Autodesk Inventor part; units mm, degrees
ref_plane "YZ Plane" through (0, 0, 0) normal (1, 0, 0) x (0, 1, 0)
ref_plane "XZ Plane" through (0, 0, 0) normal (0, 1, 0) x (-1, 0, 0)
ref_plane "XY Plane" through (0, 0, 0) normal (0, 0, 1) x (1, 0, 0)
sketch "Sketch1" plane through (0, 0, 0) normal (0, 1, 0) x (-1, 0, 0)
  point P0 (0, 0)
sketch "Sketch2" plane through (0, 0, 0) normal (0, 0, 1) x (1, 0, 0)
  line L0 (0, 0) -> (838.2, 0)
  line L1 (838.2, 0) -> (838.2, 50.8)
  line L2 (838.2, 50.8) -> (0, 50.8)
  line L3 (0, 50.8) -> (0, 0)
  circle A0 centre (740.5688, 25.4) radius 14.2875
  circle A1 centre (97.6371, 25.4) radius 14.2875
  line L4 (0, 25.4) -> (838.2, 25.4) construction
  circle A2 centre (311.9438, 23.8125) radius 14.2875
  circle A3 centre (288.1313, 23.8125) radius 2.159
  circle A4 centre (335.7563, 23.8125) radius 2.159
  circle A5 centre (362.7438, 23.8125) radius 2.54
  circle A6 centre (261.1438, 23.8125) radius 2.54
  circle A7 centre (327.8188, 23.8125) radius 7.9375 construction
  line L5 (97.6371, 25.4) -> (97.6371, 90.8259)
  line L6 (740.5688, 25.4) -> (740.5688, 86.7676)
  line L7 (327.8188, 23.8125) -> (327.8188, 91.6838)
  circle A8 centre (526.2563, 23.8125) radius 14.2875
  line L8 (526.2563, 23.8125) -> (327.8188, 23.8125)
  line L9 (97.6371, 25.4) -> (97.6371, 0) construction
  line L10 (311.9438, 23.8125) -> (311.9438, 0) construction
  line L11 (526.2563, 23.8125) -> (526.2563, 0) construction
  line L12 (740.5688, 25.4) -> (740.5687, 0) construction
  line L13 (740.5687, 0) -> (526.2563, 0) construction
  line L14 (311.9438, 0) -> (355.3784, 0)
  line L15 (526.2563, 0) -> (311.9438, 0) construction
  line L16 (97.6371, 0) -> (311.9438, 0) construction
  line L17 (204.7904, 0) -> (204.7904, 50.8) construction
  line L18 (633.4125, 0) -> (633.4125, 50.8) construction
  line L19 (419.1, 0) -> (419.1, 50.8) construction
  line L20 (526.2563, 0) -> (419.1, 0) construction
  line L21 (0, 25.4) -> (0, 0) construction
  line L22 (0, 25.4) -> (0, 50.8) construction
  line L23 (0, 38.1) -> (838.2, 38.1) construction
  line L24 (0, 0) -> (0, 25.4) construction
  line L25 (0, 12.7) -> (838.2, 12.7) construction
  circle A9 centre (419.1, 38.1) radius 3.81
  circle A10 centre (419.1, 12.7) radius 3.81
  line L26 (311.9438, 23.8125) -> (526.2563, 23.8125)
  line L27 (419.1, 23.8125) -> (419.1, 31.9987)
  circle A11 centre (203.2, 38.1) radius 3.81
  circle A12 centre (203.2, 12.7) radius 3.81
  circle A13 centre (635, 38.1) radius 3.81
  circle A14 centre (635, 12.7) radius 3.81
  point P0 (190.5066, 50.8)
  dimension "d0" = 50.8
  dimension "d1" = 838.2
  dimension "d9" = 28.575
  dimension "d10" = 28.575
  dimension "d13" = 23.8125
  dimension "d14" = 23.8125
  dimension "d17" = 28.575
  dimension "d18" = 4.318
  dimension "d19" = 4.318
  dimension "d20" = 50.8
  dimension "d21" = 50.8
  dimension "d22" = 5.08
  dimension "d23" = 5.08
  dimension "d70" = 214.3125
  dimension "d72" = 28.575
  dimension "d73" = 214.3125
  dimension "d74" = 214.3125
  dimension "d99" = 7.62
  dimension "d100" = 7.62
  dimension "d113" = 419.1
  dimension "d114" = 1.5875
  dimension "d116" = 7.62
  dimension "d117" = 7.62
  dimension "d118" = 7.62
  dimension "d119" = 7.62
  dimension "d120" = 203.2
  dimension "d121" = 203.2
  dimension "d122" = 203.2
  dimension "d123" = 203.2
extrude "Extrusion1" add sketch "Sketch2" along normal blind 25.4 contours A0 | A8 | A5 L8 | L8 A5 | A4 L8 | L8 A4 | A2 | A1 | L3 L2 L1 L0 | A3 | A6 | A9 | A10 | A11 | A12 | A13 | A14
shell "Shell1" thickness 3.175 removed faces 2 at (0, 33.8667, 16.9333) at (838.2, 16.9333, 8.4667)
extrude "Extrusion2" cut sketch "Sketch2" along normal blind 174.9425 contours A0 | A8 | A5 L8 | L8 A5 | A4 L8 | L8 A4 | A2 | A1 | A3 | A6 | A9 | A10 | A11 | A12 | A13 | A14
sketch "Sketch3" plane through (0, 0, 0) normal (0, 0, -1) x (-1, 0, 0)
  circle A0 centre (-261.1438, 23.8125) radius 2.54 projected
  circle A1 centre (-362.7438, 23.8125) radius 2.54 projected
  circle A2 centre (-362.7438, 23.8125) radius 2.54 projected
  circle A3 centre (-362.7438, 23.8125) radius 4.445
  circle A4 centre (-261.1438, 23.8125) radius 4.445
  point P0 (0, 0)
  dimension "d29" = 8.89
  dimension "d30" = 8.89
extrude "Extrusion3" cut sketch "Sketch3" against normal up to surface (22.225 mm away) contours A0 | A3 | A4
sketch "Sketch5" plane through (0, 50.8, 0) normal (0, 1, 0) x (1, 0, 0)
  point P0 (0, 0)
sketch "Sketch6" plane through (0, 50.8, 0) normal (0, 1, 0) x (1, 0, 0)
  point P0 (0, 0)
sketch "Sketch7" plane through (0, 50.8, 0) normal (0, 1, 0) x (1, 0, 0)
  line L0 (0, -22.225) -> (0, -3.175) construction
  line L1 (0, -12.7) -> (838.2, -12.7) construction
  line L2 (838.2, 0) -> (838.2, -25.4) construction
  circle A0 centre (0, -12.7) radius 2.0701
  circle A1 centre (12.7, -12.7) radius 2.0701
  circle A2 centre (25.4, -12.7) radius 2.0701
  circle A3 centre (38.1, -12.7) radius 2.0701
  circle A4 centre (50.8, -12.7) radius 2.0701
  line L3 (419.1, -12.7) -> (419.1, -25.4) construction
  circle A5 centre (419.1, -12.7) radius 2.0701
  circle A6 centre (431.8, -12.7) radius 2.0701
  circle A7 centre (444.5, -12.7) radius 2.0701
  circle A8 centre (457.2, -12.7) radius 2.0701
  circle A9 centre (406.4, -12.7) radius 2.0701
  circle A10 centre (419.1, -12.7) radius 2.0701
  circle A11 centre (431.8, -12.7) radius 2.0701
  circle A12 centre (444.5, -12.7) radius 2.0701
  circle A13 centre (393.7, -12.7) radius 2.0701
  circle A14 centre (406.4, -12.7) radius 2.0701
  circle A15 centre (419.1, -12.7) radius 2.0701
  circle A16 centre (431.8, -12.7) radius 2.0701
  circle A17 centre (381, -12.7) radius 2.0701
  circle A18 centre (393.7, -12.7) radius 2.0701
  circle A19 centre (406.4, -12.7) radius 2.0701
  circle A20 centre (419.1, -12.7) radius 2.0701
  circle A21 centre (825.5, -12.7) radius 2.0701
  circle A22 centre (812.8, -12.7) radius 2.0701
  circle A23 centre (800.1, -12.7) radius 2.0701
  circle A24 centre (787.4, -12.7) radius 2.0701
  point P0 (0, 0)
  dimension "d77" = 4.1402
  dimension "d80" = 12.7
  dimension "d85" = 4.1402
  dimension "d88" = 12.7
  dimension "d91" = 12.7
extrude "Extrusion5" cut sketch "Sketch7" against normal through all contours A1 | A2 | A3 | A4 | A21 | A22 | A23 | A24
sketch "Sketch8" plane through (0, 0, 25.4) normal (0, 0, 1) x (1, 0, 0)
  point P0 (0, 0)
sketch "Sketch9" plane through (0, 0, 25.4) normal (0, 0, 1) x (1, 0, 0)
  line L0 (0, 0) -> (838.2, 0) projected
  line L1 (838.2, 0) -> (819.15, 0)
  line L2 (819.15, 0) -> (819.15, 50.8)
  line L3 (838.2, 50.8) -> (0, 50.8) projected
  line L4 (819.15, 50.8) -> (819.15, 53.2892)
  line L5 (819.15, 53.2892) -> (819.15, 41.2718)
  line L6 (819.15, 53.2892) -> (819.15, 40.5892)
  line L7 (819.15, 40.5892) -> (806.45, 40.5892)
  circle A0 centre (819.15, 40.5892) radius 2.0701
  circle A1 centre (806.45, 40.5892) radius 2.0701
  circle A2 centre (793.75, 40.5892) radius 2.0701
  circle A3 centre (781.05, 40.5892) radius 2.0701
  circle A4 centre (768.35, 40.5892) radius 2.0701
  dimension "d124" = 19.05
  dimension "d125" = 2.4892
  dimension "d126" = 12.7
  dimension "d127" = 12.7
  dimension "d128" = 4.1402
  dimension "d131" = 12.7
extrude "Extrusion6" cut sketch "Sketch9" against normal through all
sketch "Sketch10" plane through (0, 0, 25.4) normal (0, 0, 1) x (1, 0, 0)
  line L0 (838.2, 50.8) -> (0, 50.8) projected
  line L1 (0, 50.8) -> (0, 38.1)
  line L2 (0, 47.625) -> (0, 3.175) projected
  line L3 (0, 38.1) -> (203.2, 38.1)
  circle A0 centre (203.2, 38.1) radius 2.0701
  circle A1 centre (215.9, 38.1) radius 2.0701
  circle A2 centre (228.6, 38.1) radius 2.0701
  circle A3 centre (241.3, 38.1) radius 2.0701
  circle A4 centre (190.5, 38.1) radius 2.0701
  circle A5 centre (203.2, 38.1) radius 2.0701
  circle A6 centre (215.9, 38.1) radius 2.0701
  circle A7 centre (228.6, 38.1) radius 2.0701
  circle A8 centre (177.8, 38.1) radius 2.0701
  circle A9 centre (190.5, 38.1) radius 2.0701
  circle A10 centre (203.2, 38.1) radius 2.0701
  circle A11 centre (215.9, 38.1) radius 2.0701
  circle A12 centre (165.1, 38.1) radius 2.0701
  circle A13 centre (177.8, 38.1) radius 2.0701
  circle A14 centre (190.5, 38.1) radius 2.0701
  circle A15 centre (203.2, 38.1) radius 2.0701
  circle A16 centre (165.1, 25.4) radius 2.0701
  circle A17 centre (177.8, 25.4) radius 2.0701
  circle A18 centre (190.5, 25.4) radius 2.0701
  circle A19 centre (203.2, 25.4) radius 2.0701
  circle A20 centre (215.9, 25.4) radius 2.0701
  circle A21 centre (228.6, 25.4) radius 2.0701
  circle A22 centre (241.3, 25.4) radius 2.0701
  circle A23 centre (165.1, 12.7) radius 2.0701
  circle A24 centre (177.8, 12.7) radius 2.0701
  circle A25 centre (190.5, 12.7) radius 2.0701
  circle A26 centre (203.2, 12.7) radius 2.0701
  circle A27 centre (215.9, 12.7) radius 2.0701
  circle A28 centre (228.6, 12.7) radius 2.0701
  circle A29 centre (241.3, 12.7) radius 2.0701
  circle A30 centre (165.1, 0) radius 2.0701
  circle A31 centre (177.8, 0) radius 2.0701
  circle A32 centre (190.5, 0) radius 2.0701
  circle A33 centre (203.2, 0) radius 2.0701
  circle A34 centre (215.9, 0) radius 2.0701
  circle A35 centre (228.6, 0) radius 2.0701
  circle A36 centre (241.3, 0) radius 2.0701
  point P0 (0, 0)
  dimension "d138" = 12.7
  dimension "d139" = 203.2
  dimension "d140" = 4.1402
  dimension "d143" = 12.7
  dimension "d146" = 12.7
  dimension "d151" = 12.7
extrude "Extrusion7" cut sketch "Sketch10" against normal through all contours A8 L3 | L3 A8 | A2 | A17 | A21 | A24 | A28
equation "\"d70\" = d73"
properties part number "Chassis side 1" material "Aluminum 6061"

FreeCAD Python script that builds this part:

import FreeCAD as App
import Part
import Sketcher
Q = App.Units.Quantity


def faces_at(feature, points):
    """Names of the faces that lie closest to the given points."""
    faces = feature.Shape.Faces
    near = lambda p: min(range(len(faces)), key=lambda i: faces[i].distToShape(Part.Vertex(*p))[0])
    return sorted({f"Face{near(p) + 1}" for p in points})

doc = App.newDocument("Part")
body = doc.addObject("PartDesign::Body", "Body")

# Sketch on XY plane
sketch1 = body.newObject("Sketcher::SketchObject", "Sketch")
sketch1.AttachmentSupport = (doc.getObject("XY_Plane"), [""])
sketch1.MapMode = "FlatFace"
sketch1.addGeometry(Part.LineSegment(App.Vector(0, 51, 0), App.Vector(0, 0, 0)), False)
sketch1.addGeometry(Part.LineSegment(App.Vector(0, 0, 0), App.Vector(838, 0, 0)), False)
sketch1.addGeometry(Part.LineSegment(App.Vector(838, 0, 0), App.Vector(838, 51, 0)), False)
sketch1.addGeometry(Part.LineSegment(App.Vector(838, 51, 0), App.Vector(741, 51, 0)), False)
sketch1.addGeometry(Part.LineSegment(App.Vector(741, 51, 0), App.Vector(328, 51, 0)), False)
sketch1.addGeometry(Part.LineSegment(App.Vector(328, 51, 0), App.Vector(98, 51, 0)), False)
sketch1.addGeometry(Part.LineSegment(App.Vector(98, 51, 0), App.Vector(0, 51, 0)), False)
sketch1.addConstraint(Sketcher.Constraint("Coincident", 0, 2, 1, 1))
sketch1.addConstraint(Sketcher.Constraint("Coincident", 1, 2, 2, 1))
sketch1.addConstraint(Sketcher.Constraint("Coincident", 2, 2, 3, 1))
sketch1.addConstraint(Sketcher.Constraint("Coincident", 3, 2, 4, 1))
sketch1.addConstraint(Sketcher.Constraint("Coincident", 4, 2, 5, 1))
sketch1.addConstraint(Sketcher.Constraint("Coincident", 5, 2, 6, 1))
sketch1.addConstraint(Sketcher.Constraint("Coincident", 6, 2, 0, 1))
sketch1.addConstraint(Sketcher.Constraint("Vertical", 0))
sketch1.addConstraint(Sketcher.Constraint("Horizontal", 1))
sketch1.addConstraint(Sketcher.Constraint("Vertical", 2))
sketch1.addConstraint(Sketcher.Constraint("Horizontal", 3))
sketch1.addConstraint(Sketcher.Constraint("Horizontal", 4))
sketch1.addConstraint(Sketcher.Constraint("Horizontal", 5))
sketch1.addConstraint(Sketcher.Constraint("Horizontal", 6))
sketch1.addConstraint(Sketcher.Constraint("Coincident", 0, 2, -1, 1))
sketch1.addConstraint(Sketcher.Constraint("DistanceX", 1, 1, 1, 2, Q("33 in")))
sketch1.addConstraint(Sketcher.Constraint("DistanceY", 0, 2, 0, 1, Q("2 in")))
sketch1.addConstraint(Sketcher.Constraint("DistanceX", 4, 2, 4, 1, Q("16.25 in")))
sketch1.addConstraint(Sketcher.Constraint("DistanceX", 3, 2, 3, 1, Q("3.843748 in")))
sketch1.addConstraint(Sketcher.Constraint("DistanceX", 5, 2, 5, 1, Q("230.1817 mm")))
pad1 = body.newObject("PartDesign::Pad", "Pad")
pad1.Profile = sketch1
pad1.Length = Q("1 in")
doc.recompute()

thickness = body.newObject("PartDesign::Thickness", "Thickness")
thickness.Base = (pad1, faces_at(pad1, [(0, 33.867, 16.933), (838.2, 16.933, 8.467)]))
thickness.Value = Q("0.125 in")
thickness.Reversed = True
thickness.Join = "Intersection"

# Sketch on XY plane
sketch2 = body.newObject("Sketcher::SketchObject", "Sketch001")
sketch2.AttachmentSupport = (doc.getObject("XY_Plane"), [""])
sketch2.MapMode = "FlatFace"
sketch2.addGeometry(Part.Circle(App.Vector(740.6, 25.4, 0), App.Vector(0, 0, 1), 14.3), False)
sketch2.addGeometry(Part.Circle(App.Vector(526.3, 23.8, 0), App.Vector(0, 0, 1), 14.3), False)
sketch2.addGeometry(Part.Circle(App.Vector(362.7, 23.8, 0), App.Vector(0, 0, 1), 2.5), False)
sketch2.addGeometry(Part.Circle(App.Vector(335.8, 23.8, 0), App.Vector(0, 0, 1), 2.2), False)
sketch2.addGeometry(Part.Circle(App.Vector(311.9, 23.8, 0), App.Vector(0, 0, 1), 14.3), False)
sketch2.addGeometry(Part.Circle(App.Vector(97.6, 25.4, 0), App.Vector(0, 0, 1), 14.3), False)
sketch2.addGeometry(Part.Circle(App.Vector(288.1, 23.8, 0), App.Vector(0, 0, 1), 2.2), False)
sketch2.addGeometry(Part.Circle(App.Vector(261.1, 23.8, 0), App.Vector(0, 0, 1), 2.5), False)
sketch2.addGeometry(Part.Circle(App.Vector(419.1, 38.1, 0), App.Vector(0, 0, 1), 3.8), False)
sketch2.addGeometry(Part.Circle(App.Vector(419.1, 12.7, 0), App.Vector(0, 0, 1), 3.8), False)
sketch2.addGeometry(Part.Circle(App.Vector(203.2, 38.1, 0), App.Vector(0, 0, 1), 3.8), False)
sketch2.addGeometry(Part.Circle(App.Vector(203.2, 12.7, 0), App.Vector(0, 0, 1), 3.8), False)
sketch2.addGeometry(Part.Circle(App.Vector(635, 38.1, 0), App.Vector(0, 0, 1), 3.8), False)
sketch2.addGeometry(Part.Circle(App.Vector(635, 12.7, 0), App.Vector(0, 0, 1), 3.8), False)
sketch2.addConstraint(Sketcher.Constraint("Equal", 0, 1))
sketch2.addConstraint(Sketcher.Constraint("Equal", 1, 4))
sketch2.addConstraint(Sketcher.Constraint("Equal", 4, 5))
sketch2.addConstraint(Sketcher.Constraint("Equal", 3, 6))
sketch2.addConstraint(Sketcher.Constraint("Equal", 2, 7))
sketch2.addConstraint(Sketcher.Constraint("Equal", 8, 9))
sketch2.addConstraint(Sketcher.Constraint("Equal", 9, 10))
sketch2.addConstraint(Sketcher.Constraint("Equal", 10, 11))
sketch2.addConstraint(Sketcher.Constraint("Equal", 11, 12))
sketch2.addConstraint(Sketcher.Constraint("Equal", 12, 13))
sketch2.addConstraint(Sketcher.Constraint("Horizontal", 1, 3, 2, 3))
sketch2.addConstraint(Sketcher.Constraint("Horizontal", 2, 3, 3, 3))
sketch2.addConstraint(Sketcher.Constraint("Horizontal", 3, 3, 4, 3))
sketch2.addConstraint(Sketcher.Constraint("Horizontal", 0, 3, 5, 3))
sketch2.addConstraint(Sketcher.Constraint("Horizontal", 4, 3, 6, 3))
sketch2.addConstraint(Sketcher.Constraint("Horizontal", 6, 3, 7, 3))
sketch2.addConstraint(Sketcher.Constraint("Horizontal", 8, 3, 10, 3))
sketch2.addConstraint(Sketcher.Constraint("Horizontal", 9, 3, 11, 3))
sketch2.addConstraint(Sketcher.Constraint("Horizontal", 10, 3, 12, 3))
sketch2.addConstraint(Sketcher.Constraint("Horizontal", 11, 3, 13, 3))
sketch2.addConstraint(Sketcher.Constraint("Vertical", 8, 3, 9, 3))
sketch2.addConstraint(Sketcher.Constraint("Vertical", 10, 3, 11, 3))
sketch2.addConstraint(Sketcher.Constraint("Vertical", 12, 3, 13, 3))
sketch2.addConstraint(Sketcher.Constraint("Diameter", 2, Q("0.2 in")))
sketch2.addConstraint(Sketcher.Constraint("Diameter", 8, Q("0.3 in")))
sketch2.addConstraint(Sketcher.Constraint("Diameter", 3, Q("0.17 in")))
sketch2.addConstraint(Sketcher.Constraint("Diameter", 0, Q("1.125 in")))
sketch2.addConstraint(Sketcher.Constraint("DistanceX", -1, 1, 10, 3, Q("8 in")))
sketch2.addConstraint(Sketcher.Constraint("DistanceX", 4, 3, 2, 3, Q("2 in")))
sketch2.addConstraint(Sketcher.Constraint("DistanceX", 7, 3, 4, 3, Q("2 in")))
sketch2.addConstraint(Sketcher.Constraint("DistanceX", -1, 1, 8, 3, Q("16.5 in")))
sketch2.addConstraint(Sketcher.Constraint("DistanceY", -1, 1, 0, 3, Q("1 in")))
sketch2.addConstraint(Sketcher.Constraint("DistanceY", -1, 1, 1, 3, Q("0.9375 in")))
sketch2.addConstraint(Sketcher.Constraint("DistanceX", -1, 1, 12, 3, Q("25 in")))
sketch2.addConstraint(Sketcher.Constraint("DistanceX", 1, 3, 0, 3, Q("8.4375 in")))
sketch2.addConstraint(Sketcher.Constraint("DistanceX", 4, 3, 3, 3, Q("0.9375 in")))
sketch2.addConstraint(Sketcher.Constraint("DistanceX", 4, 3, 1, 3, Q("8.4375 in")))
sketch2.addConstraint(Sketcher.Constraint("DistanceX", 6, 3, 4, 3, Q("0.9375 in")))
sketch2.addConstraint(Sketcher.Constraint("DistanceY", 9, 3, 8, 3, Q("1 in")))
sketch2.addConstraint(Sketcher.Constraint("DistanceY", -1, 1, 8, 3, Q("1.5 in")))
sketch2.addConstraint(Sketcher.Constraint("DistanceX", -1, 1, 0, 3, Q("29.156252 in")))
sketch2.addConstraint(Sketcher.Constraint("DistanceX", -1, 1, 5, 3, Q("97.637 mm")))
pocket1 = body.newObject("PartDesign::Pocket", "Pocket")
pocket1.Profile = sketch2
pocket1.Length = Q("6.8875 in")
pocket1.Reversed = True

# Sketch on XY plane
sketch3 = body.newObject("Sketcher::SketchObject", "Sketch002")
sketch3.AttachmentSupport = (doc.getObject("XY_Plane"), [""])
sketch3.MapMode = "FlatFace"
sketch3.addGeometry(Part.Circle(App.Vector(261.1, 23.8, 0), App.Vector(0, 0, 1), 4.4), False)
sketch3.addGeometry(Part.Circle(App.Vector(362.7, 23.8, 0), App.Vector(0, 0, 1), 4.4), False)
sketch3.addGeometry(Part.Circle(App.Vector(362.7, 23.8, 0), App.Vector(0, 0, 1), 2.5), False)
sketch3.addConstraint(Sketcher.Constraint("Coincident", 2, 3, 1, 3))
sketch3.addConstraint(Sketcher.Constraint("Equal", 0, 1))
sketch3.addConstraint(Sketcher.Constraint("Horizontal", 0, 3, 1, 3))
sketch3.addConstraint(Sketcher.Constraint("Diameter", 0, Q("0.35 in")))
sketch3.addConstraint(Sketcher.Constraint("Diameter", 2, Q("0.2 in")))
sketch3.addConstraint(Sketcher.Constraint("DistanceX", 0, 3, 1, 3, Q("4 in")))
sketch3.addConstraint(Sketcher.Constraint("DistanceX", -1, 1, 0, 3, Q("10.281252 in")))
sketch3.addConstraint(Sketcher.Constraint("DistanceY", -1, 1, 0, 3, Q("0.9375 in")))
pocket2 = body.newObject("PartDesign::Pocket", "Pocket001")
pocket2.Profile = sketch3
pocket2.Length = Q("0.875 in")
pocket2.Reversed = True

# Sketch on XZ plane
sketch4 = body.newObject("Sketcher::SketchObject", "Sketch003")
sketch4.AttachmentSupport = (doc.getObject("XZ_Plane"), [""])
sketch4.MapMode = "FlatFace"
sketch4.AttachmentOffset = App.Placement(App.Vector(0, 0, -2 * 25.4), App.Rotation())
sketch4.addGeometry(Part.Circle(App.Vector(12.7, 12.7, 0), App.Vector(0, 0, 1), 2.1), False)
sketch4.addGeometry(Part.Circle(App.Vector(25.4, 12.7, 0), App.Vector(0, 0, 1), 2.1), False)
sketch4.addGeometry(Part.Circle(App.Vector(38.1, 12.7, 0), App.Vector(0, 0, 1), 2.1), False)
sketch4.addGeometry(Part.Circle(App.Vector(50.8, 12.7, 0), App.Vector(0, 0, 1), 2.1), False)
sketch4.addGeometry(Part.Circle(App.Vector(825.5, 12.7, 0), App.Vector(0, 0, 1), 2.1), False)
sketch4.addGeometry(Part.Circle(App.Vector(812.8, 12.7, 0), App.Vector(0, 0, 1), 2.1), False)
sketch4.addGeometry(Part.Circle(App.Vector(800.1, 12.7, 0), App.Vector(0, 0, 1), 2.1), False)
sketch4.addGeometry(Part.Circle(App.Vector(787.4, 12.7, 0), App.Vector(0, 0, 1), 2.1), False)
sketch4.addConstraint(Sketcher.Constraint("Equal", 0, 1))
sketch4.addConstraint(Sketcher.Constraint("Equal", 1, 2))
sketch4.addConstraint(Sketcher.Constraint("Equal", 2, 3))
sketch4.addConstraint(Sketcher.Constraint("Equal", 3, 4))
sketch4.addConstraint(Sketcher.Constraint("Equal", 4, 5))
sketch4.addConstraint(Sketcher.Constraint("Equal", 5, 6))
sketch4.addConstraint(Sketcher.Constraint("Equal", 6, 7))
sketch4.addConstraint(Sketcher.Constraint("Horizontal", 0, 3, 1, 3))
sketch4.addConstraint(Sketcher.Constraint("Horizontal", 1, 3, 2, 3))
sketch4.addConstraint(Sketcher.Constraint("Horizontal", 2, 3, 3, 3))
sketch4.addConstraint(Sketcher.Constraint("Horizontal", 3, 3, 4, 3))
sketch4.addConstraint(Sketcher.Constraint("Horizontal", 4, 3, 5, 3))
sketch4.addConstraint(Sketcher.Constraint("Horizontal", 5, 3, 6, 3))
sketch4.addConstraint(Sketcher.Constraint("Horizontal", 6, 3, 7, 3))
sketch4.addConstraint(Sketcher.Constraint("Diameter", 0, Q("0.163 in")))
sketch4.addConstraint(Sketcher.Constraint("DistanceX", -1, 1, 1, 3, Q("1 in")))
sketch4.addConstraint(Sketcher.Constraint("DistanceX", 0, 3, 2, 3, Q("1 in")))
sketch4.addConstraint(Sketcher.Constraint("DistanceX", 1, 3, 3, 3, Q("1 in")))
sketch4.addConstraint(Sketcher.Constraint("DistanceX", 6, 3, 4, 3, Q("1 in")))
sketch4.addConstraint(Sketcher.Constraint("DistanceX", 7, 3, 5, 3, Q("1 in")))
sketch4.addConstraint(Sketcher.Constraint("DistanceX", -1, 1, 0, 3, Q("0.5 in")))
sketch4.addConstraint(Sketcher.Constraint("DistanceY", -1, 1, 0, 3, Q("0.5 in")))
sketch4.addConstraint(Sketcher.Constraint("DistanceX", 5, 3, 4, 3, Q("0.5 in")))
sketch4.addConstraint(Sketcher.Constraint("DistanceX", -1, 1, 5, 3, Q("32 in")))
pocket3 = body.newObject("PartDesign::Pocket", "Pocket002")
pocket3.Profile = sketch4
pocket3.Type = "ThroughAll"
pocket3.Reversed = True

# Sketch on XY plane
sketch5 = body.newObject("Sketcher::SketchObject", "Sketch004")
sketch5.AttachmentSupport = (doc.getObject("XY_Plane"), [""])
sketch5.MapMode = "FlatFace"
sketch5.AttachmentOffset = App.Placement(App.Vector(0, 0, 1 * 25.4), App.Rotation())
sketch5.addGeometry(Part.Circle(App.Vector(819.1, 40.6, 0), App.Vector(0, 0, 1), 2.1), False)
sketch5.addGeometry(Part.Circle(App.Vector(806.5, 40.6, 0), App.Vector(0, 0, 1), 2.1), False)
sketch5.addGeometry(Part.Circle(App.Vector(793.8, 40.6, 0), App.Vector(0, 0, 1), 2.1), False)
sketch5.addGeometry(Part.Circle(App.Vector(781, 40.6, 0), App.Vector(0, 0, 1), 2.1), False)
sketch5.addGeometry(Part.Circle(App.Vector(768.4, 40.6, 0), App.Vector(0, 0, 1), 2.1), False)
sketch5.addConstraint(Sketcher.Constraint("Equal", 0, 1))
sketch5.addConstraint(Sketcher.Constraint("Equal", 1, 2))
sketch5.addConstraint(Sketcher.Constraint("Equal", 2, 3))
sketch5.addConstraint(Sketcher.Constraint("Equal", 3, 4))
sketch5.addConstraint(Sketcher.Constraint("Horizontal", 0, 3, 1, 3))
sketch5.addConstraint(Sketcher.Constraint("Horizontal", 1, 3, 2, 3))
sketch5.addConstraint(Sketcher.Constraint("Horizontal", 2, 3, 3, 3))
sketch5.addConstraint(Sketcher.Constraint("Horizontal", 3, 3, 4, 3))
sketch5.addConstraint(Sketcher.Constraint("Diameter", 0, Q("0.163 in")))
sketch5.addConstraint(Sketcher.Constraint("DistanceX", 2, 3, 0, 3, Q("1 in")))
sketch5.addConstraint(Sketcher.Constraint("DistanceX", 3, 3, 1, 3, Q("1 in")))
sketch5.addConstraint(Sketcher.Constraint("DistanceX", 4, 3, 2, 3, Q("1 in")))
sketch5.addConstraint(Sketcher.Constraint("DistanceX", 1, 3, 0, 3, Q("0.5 in")))
sketch5.addConstraint(Sketcher.Constraint("DistanceX", -1, 1, 0, 3, Q("32.25 in")))
sketch5.addConstraint(Sketcher.Constraint("DistanceY", -1, 1, 0, 3, Q("1.598 in")))
pocket4 = body.newObject("PartDesign::Pocket", "Pocket003")
pocket4.Profile = sketch5
pocket4.Type = "ThroughAll"

# Sketch on XY plane
sketch6 = body.newObject("Sketcher::SketchObject", "Sketch005")
sketch6.AttachmentSupport = (doc.getObject("XY_Plane"), [""])
sketch6.MapMode = "FlatFace"
sketch6.AttachmentOffset = App.Placement(App.Vector(0, 0, 1 * 25.4), App.Rotation())
sketch6.addGeometry(Part.Circle(App.Vector(177.8, 38.1, 0), App.Vector(0, 0, 1), 2.1), False)
sketch6.addGeometry(Part.Circle(App.Vector(228.6, 38.1, 0), App.Vector(0, 0, 1), 2.1), False)
sketch6.addGeometry(Part.Circle(App.Vector(177.8, 25.4, 0), App.Vector(0, 0, 1), 2.1), False)
sketch6.addGeometry(Part.Circle(App.Vector(228.6, 25.4, 0), App.Vector(0, 0, 1), 2.1), False)
sketch6.addGeometry(Part.Circle(App.Vector(177.8, 12.7, 0), App.Vector(0, 0, 1), 2.1), False)
sketch6.addGeometry(Part.Circle(App.Vector(228.6, 12.7, 0), App.Vector(0, 0, 1), 2.1), False)
sketch6.addConstraint(Sketcher.Constraint("Equal", 0, 1))
sketch6.addConstraint(Sketcher.Constraint("Equal", 1, 2))
sketch6.addConstraint(Sketcher.Constraint("Equal", 2, 3))
sketch6.addConstraint(Sketcher.Constraint("Equal", 3, 4))
sketch6.addConstraint(Sketcher.Constraint("Equal", 4, 5))
sketch6.addConstraint(Sketcher.Constraint("Horizontal", 0, 3, 1, 3))
sketch6.addConstraint(Sketcher.Constraint("Horizontal", 2, 3, 3, 3))
sketch6.addConstraint(Sketcher.Constraint("Horizontal", 4, 3, 5, 3))
sketch6.addConstraint(Sketcher.Constraint("Vertical", 0, 3, 2, 3))
sketch6.addConstraint(Sketcher.Constraint("Vertical", 1, 3, 3, 3))
sketch6.addConstraint(Sketcher.Constraint("Vertical", 2, 3, 4, 3))
sketch6.addConstraint(Sketcher.Constraint("Vertical", 3, 3, 5, 3))
sketch6.addConstraint(Sketcher.Constraint("Diameter", 0, Q("0.163 in")))
sketch6.addConstraint(Sketcher.Constraint("DistanceY", -1, 1, 2, 3, Q("1 in")))
sketch6.addConstraint(Sketcher.Constraint("DistanceY", 4, 3, 0, 3, Q("1 in")))
sketch6.addConstraint(Sketcher.Constraint("DistanceY", -1, 1, 4, 3, Q("0.5 in")))
sketch6.addConstraint(Sketcher.Constraint("DistanceX", -1, 1, 0, 3, Q("7 in")))
sketch6.addConstraint(Sketcher.Constraint("DistanceX", -1, 1, 1, 3, Q("9 in")))
pocket5 = body.newObject("PartDesign::Pocket", "Pocket004")
pocket5.Profile = sketch6
pocket5.Type = "ThroughAll"

doc.recompute()
